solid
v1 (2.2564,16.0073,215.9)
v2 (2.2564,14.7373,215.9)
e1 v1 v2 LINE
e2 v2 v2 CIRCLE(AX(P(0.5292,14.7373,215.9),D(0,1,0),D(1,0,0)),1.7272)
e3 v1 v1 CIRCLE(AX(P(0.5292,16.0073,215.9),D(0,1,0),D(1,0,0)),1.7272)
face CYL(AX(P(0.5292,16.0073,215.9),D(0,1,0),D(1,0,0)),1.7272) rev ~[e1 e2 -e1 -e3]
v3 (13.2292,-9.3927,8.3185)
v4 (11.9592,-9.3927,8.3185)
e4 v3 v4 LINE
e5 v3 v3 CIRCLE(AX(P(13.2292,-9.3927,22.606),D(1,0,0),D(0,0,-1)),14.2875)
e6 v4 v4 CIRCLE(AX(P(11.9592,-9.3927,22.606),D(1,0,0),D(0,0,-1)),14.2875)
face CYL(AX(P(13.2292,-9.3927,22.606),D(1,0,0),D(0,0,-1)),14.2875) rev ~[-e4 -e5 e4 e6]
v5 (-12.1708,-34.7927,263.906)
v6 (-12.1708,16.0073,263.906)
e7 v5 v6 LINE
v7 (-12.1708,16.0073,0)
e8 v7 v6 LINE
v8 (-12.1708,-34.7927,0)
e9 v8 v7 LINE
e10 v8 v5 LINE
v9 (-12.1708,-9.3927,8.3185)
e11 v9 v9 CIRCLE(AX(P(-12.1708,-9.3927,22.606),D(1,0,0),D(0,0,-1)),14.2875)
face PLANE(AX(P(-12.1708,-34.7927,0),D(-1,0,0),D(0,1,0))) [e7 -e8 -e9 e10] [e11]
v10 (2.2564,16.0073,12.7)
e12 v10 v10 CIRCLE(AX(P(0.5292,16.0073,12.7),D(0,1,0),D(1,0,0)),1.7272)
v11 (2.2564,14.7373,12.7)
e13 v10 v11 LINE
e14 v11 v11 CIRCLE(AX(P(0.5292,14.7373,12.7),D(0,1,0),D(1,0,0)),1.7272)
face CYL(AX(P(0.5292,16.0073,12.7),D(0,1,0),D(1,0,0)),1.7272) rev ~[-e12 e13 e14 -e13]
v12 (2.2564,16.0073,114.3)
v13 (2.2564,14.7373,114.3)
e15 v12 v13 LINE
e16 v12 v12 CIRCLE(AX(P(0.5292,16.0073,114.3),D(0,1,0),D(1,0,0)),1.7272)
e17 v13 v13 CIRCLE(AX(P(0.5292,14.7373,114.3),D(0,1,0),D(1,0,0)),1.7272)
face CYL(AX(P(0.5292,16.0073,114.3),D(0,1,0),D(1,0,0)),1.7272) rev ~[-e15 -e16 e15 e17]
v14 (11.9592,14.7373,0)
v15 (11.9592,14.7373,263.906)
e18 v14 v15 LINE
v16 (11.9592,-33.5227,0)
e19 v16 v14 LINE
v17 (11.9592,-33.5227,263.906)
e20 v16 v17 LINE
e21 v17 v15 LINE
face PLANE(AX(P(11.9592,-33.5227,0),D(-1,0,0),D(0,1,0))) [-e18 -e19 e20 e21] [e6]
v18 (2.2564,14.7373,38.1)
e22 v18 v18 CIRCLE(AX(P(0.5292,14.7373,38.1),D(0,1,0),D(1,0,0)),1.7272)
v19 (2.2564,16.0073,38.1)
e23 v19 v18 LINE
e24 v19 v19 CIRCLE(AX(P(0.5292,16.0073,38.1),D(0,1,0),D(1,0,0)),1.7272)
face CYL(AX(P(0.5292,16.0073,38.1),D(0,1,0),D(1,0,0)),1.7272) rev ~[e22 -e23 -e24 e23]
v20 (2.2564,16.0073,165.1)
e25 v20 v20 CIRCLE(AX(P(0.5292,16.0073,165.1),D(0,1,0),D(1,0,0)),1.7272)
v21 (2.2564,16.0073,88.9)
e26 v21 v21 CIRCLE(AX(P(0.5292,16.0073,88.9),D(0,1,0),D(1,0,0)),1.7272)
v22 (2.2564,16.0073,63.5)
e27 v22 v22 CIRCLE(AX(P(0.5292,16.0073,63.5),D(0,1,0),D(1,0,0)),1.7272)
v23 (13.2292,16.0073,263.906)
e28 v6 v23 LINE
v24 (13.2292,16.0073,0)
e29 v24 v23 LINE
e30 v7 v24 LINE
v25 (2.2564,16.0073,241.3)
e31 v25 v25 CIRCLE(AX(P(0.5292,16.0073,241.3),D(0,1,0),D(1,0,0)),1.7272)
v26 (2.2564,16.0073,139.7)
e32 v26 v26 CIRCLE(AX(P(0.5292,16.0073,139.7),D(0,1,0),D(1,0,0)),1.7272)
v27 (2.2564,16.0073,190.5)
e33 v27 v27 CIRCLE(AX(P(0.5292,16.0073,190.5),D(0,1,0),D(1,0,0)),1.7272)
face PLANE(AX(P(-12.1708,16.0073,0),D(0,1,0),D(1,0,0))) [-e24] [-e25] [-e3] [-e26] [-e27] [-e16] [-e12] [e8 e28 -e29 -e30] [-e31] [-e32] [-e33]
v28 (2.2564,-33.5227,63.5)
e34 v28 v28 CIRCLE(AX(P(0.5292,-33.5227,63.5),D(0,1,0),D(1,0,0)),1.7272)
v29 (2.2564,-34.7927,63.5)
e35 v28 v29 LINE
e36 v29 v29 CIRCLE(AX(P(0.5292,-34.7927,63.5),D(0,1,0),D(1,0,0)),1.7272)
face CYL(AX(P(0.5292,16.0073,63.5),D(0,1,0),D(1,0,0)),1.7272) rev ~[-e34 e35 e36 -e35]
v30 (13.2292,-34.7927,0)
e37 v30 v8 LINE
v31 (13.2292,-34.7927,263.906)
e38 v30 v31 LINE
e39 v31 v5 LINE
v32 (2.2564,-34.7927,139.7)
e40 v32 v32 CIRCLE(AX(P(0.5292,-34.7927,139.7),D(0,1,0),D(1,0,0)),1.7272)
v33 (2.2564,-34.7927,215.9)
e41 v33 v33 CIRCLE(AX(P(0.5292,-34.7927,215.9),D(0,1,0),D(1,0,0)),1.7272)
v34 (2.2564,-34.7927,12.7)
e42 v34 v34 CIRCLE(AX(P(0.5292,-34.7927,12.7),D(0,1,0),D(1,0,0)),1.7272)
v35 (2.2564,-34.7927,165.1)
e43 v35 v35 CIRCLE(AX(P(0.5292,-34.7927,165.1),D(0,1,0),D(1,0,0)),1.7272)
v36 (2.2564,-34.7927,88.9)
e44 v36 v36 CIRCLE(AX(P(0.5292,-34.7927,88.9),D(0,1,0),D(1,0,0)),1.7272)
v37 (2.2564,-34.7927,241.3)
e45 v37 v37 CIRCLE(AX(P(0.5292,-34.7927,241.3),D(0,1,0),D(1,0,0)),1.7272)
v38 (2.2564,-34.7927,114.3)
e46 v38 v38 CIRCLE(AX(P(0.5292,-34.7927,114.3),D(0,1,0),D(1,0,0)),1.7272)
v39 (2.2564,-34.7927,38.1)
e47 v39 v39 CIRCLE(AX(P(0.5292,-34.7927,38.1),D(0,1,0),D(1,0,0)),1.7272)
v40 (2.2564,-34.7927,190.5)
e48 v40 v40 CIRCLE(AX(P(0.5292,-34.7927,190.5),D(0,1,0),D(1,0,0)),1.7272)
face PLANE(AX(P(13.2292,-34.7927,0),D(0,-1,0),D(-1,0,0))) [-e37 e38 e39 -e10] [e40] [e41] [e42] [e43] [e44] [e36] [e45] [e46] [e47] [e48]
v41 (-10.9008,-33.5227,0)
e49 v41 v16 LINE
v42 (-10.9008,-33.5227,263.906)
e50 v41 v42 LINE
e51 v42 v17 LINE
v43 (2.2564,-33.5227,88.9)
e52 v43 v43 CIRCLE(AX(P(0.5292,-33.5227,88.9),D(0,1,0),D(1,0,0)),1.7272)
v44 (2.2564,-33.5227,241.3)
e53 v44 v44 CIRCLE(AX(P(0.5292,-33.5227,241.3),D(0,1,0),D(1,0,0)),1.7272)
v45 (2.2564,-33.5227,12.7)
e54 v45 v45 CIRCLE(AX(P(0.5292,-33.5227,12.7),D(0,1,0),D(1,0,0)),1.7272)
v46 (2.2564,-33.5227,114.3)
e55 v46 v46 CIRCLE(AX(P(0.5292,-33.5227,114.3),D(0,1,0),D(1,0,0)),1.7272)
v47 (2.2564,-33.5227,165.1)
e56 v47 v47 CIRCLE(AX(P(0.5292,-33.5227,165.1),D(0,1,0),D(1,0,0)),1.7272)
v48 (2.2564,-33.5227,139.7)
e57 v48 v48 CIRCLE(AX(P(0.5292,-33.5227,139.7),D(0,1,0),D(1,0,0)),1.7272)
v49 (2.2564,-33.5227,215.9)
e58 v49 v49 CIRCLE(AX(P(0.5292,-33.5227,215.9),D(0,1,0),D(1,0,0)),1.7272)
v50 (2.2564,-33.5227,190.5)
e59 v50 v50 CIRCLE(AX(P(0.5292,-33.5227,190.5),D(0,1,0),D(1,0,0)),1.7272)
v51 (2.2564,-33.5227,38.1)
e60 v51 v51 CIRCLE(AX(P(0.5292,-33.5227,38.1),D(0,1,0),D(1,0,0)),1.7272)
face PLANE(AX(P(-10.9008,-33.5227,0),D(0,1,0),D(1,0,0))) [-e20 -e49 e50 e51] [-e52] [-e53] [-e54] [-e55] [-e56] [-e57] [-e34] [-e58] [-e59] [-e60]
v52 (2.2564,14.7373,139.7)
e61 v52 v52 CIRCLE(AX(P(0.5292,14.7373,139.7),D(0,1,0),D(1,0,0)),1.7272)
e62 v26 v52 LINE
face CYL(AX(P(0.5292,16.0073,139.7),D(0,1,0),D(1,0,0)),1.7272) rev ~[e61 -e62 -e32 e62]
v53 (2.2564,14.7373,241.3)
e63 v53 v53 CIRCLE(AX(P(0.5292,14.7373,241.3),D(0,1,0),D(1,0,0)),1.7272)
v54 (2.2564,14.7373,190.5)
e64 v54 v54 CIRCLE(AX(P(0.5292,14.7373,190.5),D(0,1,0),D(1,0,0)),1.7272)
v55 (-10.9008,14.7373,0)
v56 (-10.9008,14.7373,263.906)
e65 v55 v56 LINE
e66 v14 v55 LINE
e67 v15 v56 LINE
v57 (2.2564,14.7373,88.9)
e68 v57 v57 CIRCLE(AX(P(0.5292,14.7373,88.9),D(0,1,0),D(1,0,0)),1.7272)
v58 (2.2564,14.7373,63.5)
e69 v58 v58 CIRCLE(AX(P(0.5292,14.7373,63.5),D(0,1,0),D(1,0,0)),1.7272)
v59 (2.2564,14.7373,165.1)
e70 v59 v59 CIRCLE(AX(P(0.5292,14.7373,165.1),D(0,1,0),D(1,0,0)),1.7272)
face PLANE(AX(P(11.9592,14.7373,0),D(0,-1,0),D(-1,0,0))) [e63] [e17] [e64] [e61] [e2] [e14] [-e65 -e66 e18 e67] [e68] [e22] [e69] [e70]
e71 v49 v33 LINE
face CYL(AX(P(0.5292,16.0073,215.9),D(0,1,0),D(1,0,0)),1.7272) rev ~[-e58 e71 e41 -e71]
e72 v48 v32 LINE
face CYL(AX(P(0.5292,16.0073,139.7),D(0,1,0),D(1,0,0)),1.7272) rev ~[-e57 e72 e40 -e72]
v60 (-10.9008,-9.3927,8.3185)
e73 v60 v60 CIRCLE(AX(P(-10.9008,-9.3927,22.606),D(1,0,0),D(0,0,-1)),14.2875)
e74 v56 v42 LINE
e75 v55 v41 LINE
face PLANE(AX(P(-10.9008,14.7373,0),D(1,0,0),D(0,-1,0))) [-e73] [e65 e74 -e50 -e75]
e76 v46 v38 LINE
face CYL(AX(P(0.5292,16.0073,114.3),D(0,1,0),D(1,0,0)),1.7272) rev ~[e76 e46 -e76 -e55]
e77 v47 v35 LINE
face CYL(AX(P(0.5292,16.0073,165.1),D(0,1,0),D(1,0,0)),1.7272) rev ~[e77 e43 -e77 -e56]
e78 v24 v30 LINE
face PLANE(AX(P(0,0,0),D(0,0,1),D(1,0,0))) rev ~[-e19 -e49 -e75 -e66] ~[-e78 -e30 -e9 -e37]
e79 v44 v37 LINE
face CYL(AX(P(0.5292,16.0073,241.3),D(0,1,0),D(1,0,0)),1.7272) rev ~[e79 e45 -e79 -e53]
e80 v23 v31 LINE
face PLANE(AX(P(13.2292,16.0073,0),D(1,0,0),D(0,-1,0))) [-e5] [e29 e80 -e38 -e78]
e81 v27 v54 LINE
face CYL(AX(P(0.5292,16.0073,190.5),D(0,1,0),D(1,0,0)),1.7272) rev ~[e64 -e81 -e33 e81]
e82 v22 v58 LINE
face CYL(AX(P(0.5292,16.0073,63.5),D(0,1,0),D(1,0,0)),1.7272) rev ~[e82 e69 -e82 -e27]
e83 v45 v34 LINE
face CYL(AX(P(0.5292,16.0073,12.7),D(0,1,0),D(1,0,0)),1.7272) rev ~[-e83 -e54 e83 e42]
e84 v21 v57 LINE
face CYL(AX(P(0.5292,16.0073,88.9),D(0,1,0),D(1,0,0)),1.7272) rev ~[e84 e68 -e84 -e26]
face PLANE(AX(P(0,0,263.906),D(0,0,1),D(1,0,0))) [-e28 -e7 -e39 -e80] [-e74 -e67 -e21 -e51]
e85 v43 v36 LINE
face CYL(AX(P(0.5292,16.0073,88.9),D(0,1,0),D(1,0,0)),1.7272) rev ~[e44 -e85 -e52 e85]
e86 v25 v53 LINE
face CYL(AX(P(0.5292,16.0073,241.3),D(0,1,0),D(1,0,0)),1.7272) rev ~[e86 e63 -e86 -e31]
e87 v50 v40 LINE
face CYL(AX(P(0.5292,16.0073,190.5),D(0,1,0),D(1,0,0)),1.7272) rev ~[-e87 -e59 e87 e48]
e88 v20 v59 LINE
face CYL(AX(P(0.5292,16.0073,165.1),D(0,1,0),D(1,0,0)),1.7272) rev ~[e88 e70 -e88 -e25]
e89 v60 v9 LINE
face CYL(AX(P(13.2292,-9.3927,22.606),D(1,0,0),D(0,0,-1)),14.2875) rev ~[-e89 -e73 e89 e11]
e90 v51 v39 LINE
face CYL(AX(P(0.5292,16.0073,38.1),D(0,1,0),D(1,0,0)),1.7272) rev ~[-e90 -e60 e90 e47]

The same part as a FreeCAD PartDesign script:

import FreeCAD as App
import Part
import Sketcher
from FreeCAD import Vector
Q = App.Units.Quantity


def add_polygon(sketch, points):
    """Adds a closed chain of lines whose ends are joined by coincident constraints."""
    first, n = sketch.GeometryCount, len(points)
    for a, b in zip(points, points[1:] + points[:1]):
        sketch.addGeometry(Part.LineSegment(App.Vector(*a, 0), App.Vector(*b, 0)), False)
    for i in range(n):
        sketch.addConstraint(Sketcher.Constraint("Coincident", first + i, 2, first + (i + 1) % n, 1))

doc = App.newDocument("Part")
params = doc.addObject("Spreadsheet::Sheet", "Params")
for row, (alias, value) in enumerate([
    ("sketch1_width", "1 in"),
    ("sketch1_height", "2 in"),
    ("pad1_length", "10.39 in"),
    ("sketch2_diameter", "0.136 in"),
    ("linearpattern_pitch", "1 in"),
    ("sketch3_diameter", "1.125 in"),
], start=1):
    params.set(f"A{row}", alias)
    params.set(f"B{row}", "=" + value)
    params.setAlias(f"B{row}", alias)

body = doc.addObject("PartDesign::Body", "Body")

sketch1 = doc.addObject("Sketcher::SketchObject", "Sketch")
body.addObject(sketch1)
sketch1.AttachmentSupport = (doc.XY_Plane, [""])
sketch1.MapMode = "FlatFace"
add_polygon(sketch1, [(13, 16), (-12, 16), (-12, -35), (13, -35)])
add_polygon(sketch1, [(-11, 15), (12, 15), (12, -34), (-11, -34)])
sketch1.addConstraint([
    Sketcher.Constraint("Horizontal", 0),
    Sketcher.Constraint("Vertical", 1),
    Sketcher.Constraint("Horizontal", 2),
    Sketcher.Constraint("Vertical", 3),
    Sketcher.Constraint("Horizontal", 4),
    Sketcher.Constraint("Vertical", 5),
    Sketcher.Constraint("Horizontal", 6),
    Sketcher.Constraint("Vertical", 7),
    Sketcher.Constraint("DistanceX", 0, 2, 0, 1, Q("1 in")),
    Sketcher.Constraint("DistanceY", 1, 2, 1, 1, Q("2 in")),
    Sketcher.Constraint("DistanceX", 4, 2, 3, 2, Q("0.05 in")),
    Sketcher.Constraint("DistanceY", 4, 2, 3, 2, Q("0.05 in")),
    Sketcher.Constraint("DistanceY", 2, 2, 5, 2, Q("0.05 in")),
    Sketcher.Constraint("DistanceX", 1, 2, 6, 2, Q("0.05 in")),
    Sketcher.Constraint("DistanceY", -1, 1, 0, 2, Q("0.6302 in")),
    Sketcher.Constraint("DistanceX", 0, 2, -1, 1, Q("12.1708 mm")),
])
sketch1.setExpression("Constraints[16]", "Params.sketch1_width")
sketch1.setExpression("Constraints[17]", "Params.sketch1_height")
pad1 = doc.addObject("PartDesign::Pad", "Pad")
body.addObject(pad1)
pad1.Profile = sketch1
pad1.setExpression("Length", "Params.pad1_length")

sketch2 = doc.addObject("Sketcher::SketchObject", "Sketch001")
body.addObject(sketch2)
sketch2.AttachmentSupport = (doc.XZ_Plane, [""])
sketch2.MapMode = "FlatFace"
sketch2.AttachmentOffset = App.Placement(Vector(0, 0, -0.6302087 * 25.4), App.Rotation())
sketch2.addGeometry(Part.Circle(Vector(0.5, 12.7, 0), Vector(0, 0, 1), 1.7), False)
sketch2.addConstraint([
    Sketcher.Constraint("Diameter", 0, Q("0.136 in")),
    Sketcher.Constraint("DistanceY", -1, 1, 0, 3, Q("0.5 in")),
    Sketcher.Constraint("DistanceX", -1, 1, 0, 3, Q("0.5292 mm")),
])
sketch2.setExpression("Constraints[0]", "Params.sketch2_diameter")
pocket1 = doc.addObject("PartDesign::Pocket", "Pocket")
body.addObject(pocket1)
pocket1.Profile = sketch2
pocket1.Type = "ThroughAll"
pocket1.Reversed = True
doc.recompute()

linearpattern = doc.addObject("PartDesign::LinearPattern", "LinearPattern")
body.addObject(linearpattern)
linearpattern.Originals = [pocket1]
linearpattern.Direction = (doc.Z_Axis, [""])
linearpattern.Mode = "offset"
linearpattern.setExpression("Offset", "Params.linearpattern_pitch")
linearpattern.Occurrences = 26
body.Tip = linearpattern

sketch3 = doc.addObject("Sketcher::SketchObject", "Sketch002")
body.addObject(sketch3)
sketch3.AttachmentSupport = (doc.YZ_Plane, [""])
sketch3.MapMode = "FlatFace"
sketch3.AttachmentOffset = App.Placement(Vector(0, 0, 13.2292), App.Rotation())
sketch3.addGeometry(Part.Circle(Vector(-9, 23, 0), Vector(0, 0, 1), 14), False)
sketch3.addConstraint([
    Sketcher.Constraint("Diameter", 0, Q("1.125 in")),
    Sketcher.Constraint("DistanceY", -1, 1, 0, 3, Q("0.89 in")),
    Sketcher.Constraint("DistanceX", 0, 3, -1, 1, Q("0.3698 in")),
])
sketch3.setExpression("Constraints[0]", "Params.sketch3_diameter")
pocket2 = doc.addObject("PartDesign::Pocket", "Pocket001")
body.addObject(pocket2)
pocket2.Profile = sketch3
pocket2.Type = "ThroughAll"

doc.recompute()
